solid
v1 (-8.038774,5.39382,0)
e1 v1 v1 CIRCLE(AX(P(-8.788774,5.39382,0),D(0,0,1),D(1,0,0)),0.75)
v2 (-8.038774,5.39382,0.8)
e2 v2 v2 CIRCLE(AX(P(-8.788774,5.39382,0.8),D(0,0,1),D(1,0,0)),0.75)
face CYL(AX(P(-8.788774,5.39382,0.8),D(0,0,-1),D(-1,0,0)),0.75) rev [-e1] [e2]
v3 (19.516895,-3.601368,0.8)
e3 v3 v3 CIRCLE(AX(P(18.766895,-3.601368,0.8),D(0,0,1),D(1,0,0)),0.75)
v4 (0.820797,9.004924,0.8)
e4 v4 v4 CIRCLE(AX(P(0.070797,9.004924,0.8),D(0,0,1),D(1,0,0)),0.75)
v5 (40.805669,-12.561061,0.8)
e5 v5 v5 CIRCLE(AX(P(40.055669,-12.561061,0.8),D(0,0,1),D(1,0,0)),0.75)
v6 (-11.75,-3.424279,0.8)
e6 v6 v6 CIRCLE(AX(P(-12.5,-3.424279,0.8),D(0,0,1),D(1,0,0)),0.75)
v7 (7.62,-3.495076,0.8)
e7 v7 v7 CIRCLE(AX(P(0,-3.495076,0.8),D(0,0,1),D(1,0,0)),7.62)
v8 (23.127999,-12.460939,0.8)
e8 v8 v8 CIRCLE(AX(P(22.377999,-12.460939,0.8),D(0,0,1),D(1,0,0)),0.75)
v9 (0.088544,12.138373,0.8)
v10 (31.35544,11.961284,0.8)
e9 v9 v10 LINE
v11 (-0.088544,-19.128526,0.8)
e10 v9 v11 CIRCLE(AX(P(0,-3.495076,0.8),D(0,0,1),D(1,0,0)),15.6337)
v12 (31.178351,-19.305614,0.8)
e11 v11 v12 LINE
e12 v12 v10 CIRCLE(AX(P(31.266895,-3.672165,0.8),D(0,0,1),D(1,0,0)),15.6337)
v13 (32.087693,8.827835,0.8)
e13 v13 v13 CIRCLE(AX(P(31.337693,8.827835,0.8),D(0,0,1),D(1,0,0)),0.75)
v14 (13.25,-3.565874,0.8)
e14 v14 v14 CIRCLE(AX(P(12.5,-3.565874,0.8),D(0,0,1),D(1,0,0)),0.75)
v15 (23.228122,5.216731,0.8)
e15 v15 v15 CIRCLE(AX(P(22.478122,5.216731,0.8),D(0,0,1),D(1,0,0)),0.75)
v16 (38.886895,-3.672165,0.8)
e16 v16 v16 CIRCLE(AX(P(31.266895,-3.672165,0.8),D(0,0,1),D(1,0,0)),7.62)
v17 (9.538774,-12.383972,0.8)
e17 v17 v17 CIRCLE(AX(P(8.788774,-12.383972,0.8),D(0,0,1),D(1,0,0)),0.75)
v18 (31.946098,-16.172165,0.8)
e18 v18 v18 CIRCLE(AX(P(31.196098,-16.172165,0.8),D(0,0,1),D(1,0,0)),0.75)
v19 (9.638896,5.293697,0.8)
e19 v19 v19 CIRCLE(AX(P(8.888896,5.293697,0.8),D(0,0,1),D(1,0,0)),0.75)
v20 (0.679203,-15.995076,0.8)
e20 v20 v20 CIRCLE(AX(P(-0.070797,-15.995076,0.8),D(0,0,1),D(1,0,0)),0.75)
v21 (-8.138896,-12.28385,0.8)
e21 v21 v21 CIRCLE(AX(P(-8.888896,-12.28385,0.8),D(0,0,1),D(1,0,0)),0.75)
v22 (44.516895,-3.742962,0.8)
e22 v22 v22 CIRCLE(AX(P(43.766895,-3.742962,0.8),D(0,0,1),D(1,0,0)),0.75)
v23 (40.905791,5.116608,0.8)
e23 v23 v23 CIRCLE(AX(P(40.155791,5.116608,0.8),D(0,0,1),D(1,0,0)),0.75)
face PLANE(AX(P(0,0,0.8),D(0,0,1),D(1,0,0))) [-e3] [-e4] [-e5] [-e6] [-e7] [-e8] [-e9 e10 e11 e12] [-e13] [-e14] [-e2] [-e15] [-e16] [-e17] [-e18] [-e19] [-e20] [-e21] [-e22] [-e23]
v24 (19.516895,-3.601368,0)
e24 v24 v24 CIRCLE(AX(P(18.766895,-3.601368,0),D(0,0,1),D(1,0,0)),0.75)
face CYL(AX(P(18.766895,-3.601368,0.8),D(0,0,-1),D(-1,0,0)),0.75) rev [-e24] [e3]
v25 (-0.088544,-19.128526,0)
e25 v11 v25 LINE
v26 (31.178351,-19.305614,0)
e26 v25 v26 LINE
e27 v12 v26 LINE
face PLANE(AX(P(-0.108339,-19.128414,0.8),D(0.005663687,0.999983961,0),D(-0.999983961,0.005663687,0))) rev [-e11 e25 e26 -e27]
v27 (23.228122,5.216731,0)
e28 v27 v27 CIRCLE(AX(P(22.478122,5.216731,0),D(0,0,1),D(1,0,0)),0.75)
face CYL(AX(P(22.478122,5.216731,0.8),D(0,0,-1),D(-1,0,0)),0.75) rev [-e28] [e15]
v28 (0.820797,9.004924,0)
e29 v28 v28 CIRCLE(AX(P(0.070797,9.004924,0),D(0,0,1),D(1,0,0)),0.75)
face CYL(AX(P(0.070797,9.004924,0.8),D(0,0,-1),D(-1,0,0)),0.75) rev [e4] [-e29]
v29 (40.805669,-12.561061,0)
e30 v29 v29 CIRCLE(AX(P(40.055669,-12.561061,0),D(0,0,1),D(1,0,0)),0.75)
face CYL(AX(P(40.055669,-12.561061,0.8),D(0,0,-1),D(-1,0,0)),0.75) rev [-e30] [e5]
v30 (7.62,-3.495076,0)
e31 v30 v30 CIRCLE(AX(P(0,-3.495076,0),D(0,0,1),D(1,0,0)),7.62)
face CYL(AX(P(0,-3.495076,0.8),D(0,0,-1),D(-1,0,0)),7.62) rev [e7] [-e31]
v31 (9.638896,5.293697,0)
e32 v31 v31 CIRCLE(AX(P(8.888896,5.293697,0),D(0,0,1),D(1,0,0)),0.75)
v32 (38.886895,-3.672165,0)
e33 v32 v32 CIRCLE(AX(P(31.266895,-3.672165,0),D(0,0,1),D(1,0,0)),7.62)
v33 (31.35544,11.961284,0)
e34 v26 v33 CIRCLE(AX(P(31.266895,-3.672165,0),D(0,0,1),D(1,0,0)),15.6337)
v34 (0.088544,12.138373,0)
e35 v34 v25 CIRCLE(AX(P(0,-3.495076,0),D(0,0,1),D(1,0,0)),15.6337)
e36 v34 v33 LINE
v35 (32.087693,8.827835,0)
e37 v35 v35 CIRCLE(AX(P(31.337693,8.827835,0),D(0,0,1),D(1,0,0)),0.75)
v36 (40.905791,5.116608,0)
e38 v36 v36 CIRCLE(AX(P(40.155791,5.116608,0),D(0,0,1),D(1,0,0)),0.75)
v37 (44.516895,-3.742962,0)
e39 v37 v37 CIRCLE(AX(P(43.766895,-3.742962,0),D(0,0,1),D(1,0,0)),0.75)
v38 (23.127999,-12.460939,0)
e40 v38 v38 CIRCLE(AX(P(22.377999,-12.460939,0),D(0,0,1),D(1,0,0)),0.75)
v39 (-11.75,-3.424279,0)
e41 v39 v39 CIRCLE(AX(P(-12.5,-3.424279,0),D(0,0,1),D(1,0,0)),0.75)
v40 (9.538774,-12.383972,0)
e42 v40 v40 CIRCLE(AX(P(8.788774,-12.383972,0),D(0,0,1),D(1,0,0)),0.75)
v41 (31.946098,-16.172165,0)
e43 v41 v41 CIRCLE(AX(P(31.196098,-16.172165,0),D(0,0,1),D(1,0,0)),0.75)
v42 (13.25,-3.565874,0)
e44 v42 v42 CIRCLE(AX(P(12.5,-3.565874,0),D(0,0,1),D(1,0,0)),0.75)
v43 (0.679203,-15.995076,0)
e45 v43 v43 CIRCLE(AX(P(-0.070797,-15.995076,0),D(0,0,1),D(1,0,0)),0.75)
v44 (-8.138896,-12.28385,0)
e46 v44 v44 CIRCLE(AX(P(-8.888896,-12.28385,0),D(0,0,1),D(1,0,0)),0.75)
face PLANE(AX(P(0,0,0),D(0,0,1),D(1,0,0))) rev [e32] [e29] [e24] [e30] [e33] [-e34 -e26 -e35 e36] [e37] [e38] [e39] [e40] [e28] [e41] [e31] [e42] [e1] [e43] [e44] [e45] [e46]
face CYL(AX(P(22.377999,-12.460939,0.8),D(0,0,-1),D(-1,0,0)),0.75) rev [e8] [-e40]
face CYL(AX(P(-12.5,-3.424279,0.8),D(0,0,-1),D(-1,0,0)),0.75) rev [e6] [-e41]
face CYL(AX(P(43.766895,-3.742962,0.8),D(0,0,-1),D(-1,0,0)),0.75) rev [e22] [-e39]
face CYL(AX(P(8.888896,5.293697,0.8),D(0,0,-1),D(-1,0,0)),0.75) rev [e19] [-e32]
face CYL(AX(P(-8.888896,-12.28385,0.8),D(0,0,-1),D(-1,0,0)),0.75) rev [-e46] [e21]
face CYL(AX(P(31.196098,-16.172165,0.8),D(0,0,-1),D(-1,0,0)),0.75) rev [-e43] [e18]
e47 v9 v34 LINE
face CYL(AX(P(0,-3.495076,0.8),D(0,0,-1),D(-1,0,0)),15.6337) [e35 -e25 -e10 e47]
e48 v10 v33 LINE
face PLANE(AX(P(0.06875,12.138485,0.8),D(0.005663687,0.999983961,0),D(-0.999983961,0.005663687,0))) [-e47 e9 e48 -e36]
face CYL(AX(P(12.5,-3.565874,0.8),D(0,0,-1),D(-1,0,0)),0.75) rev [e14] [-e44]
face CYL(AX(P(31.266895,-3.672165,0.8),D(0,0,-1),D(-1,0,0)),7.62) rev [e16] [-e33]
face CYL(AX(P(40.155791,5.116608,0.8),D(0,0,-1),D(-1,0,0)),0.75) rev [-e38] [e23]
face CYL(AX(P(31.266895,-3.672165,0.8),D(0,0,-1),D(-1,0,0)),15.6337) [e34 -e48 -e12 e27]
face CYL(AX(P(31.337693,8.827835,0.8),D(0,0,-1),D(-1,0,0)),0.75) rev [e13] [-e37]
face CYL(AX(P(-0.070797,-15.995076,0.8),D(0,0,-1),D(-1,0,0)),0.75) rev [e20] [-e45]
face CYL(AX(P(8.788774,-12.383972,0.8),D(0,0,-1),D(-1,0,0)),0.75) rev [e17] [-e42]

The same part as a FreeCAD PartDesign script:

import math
import FreeCAD as App
import Part
import Sketcher

V = App.Vector
Q = App.Units.Quantity

doc = App.newDocument("Part")
body = doc.addObject("PartDesign::Body", "Body")

# Sketch on XY plane
sketch1 = body.newObject("Sketcher::SketchObject", "Sketch")
sketch1.AttachmentSupport = (doc.getObject("XY_Plane"), [""])
sketch1.MapMode = "FlatFace"
sketch1.addGeometry([
    Part.LineSegment(V(-0.1, -19.1, 0), V(31.2, -19.3, 0)),  # 0
    Part.ArcOfCircle(Part.Circle(V(31.3, -3.7, 0), V(0, 0, 1), 15.6), math.radians(-90), math.radians(90)),  # 1
    Part.LineSegment(V(31.4, 12, 0), V(0.1, 12.1, 0)),  # 2
    Part.ArcOfCircle(Part.Circle(V(0, -3.5, 0), V(0, 0, 1), 15.6), math.radians(90), math.radians(270)),  # 3
    Part.Circle(V(-0.1, -16, 0), V(0, 0, 1), 0.8),  # 4
    Part.Circle(V(-8.9, -12.3, 0), V(0, 0, 1), 0.8),  # 5
    Part.Circle(V(8.8, -12.4, 0), V(0, 0, 1), 0.8),  # 6
    Part.Circle(V(22.4, -12.5, 0), V(0, 0, 1), 0.8),  # 7
    Part.Circle(V(31.2, -16.2, 0), V(0, 0, 1), 0.8),  # 8
    Part.Circle(V(40.1, -12.6, 0), V(0, 0, 1), 0.8),  # 9
    Part.Circle(V(18.8, -3.6, 0), V(0, 0, 1), 0.8),  # 10
    Part.Circle(V(31.3, -3.7, 0), V(0, 0, 1), 7.6),  # 11
    Part.Circle(V(43.8, -3.7, 0), V(0, 0, 1), 0.8),  # 12
    Part.Circle(V(-12.5, -3.4, 0), V(0, 0, 1), 0.8),  # 13
    Part.Circle(V(0, -3.5, 0), V(0, 0, 1), 7.6),  # 14
    Part.Circle(V(12.5, -3.6, 0), V(0, 0, 1), 0.8),  # 15
    Part.Circle(V(-8.8, 5.4, 0), V(0, 0, 1), 0.8),  # 16
    Part.Circle(V(0.1, 9, 0), V(0, 0, 1), 0.8),  # 17
    Part.Circle(V(8.9, 5.3, 0), V(0, 0, 1), 0.8),  # 18
    Part.Circle(V(22.5, 5.2, 0), V(0, 0, 1), 0.8),  # 19
    Part.Circle(V(40.2, 5.1, 0), V(0, 0, 1), 0.8),  # 20
    Part.Circle(V(31.3, 8.8, 0), V(0, 0, 1), 0.8),  # 21
], False)
sketch1.addConstraint([
    Sketcher.Constraint("Tangent", 0, 2, 1, 1),
    Sketcher.Constraint("Tangent", 1, 2, 2, 1),
    Sketcher.Constraint("Tangent", 2, 2, 3, 1),
    Sketcher.Constraint("Tangent", 3, 2, 0, 1),
    Sketcher.Constraint("Coincident", 11, 3, 1, 3),
    Sketcher.Constraint("Coincident", 14, 3, 3, 3),
    Sketcher.Constraint("Equal", 1, 3),
    Sketcher.Constraint("Equal", 4, 5),
    Sketcher.Constraint("Equal", 5, 6),
    Sketcher.Constraint("Equal", 6, 7),
    Sketcher.Constraint("Equal", 7, 8),
    Sketcher.Constraint("Equal", 8, 9),
    Sketcher.Constraint("Equal", 9, 10),
    Sketcher.Constraint("Equal", 10, 12),
    Sketcher.Constraint("Equal", 12, 13),
    Sketcher.Constraint("Equal", 11, 14),
    Sketcher.Constraint("Equal", 13, 15),
    Sketcher.Constraint("Equal", 15, 16),
    Sketcher.Constraint("Equal", 16, 17),
    Sketcher.Constraint("Equal", 17, 18),
    Sketcher.Constraint("Equal", 18, 19),
    Sketcher.Constraint("Equal", 19, 20),
    Sketcher.Constraint("Equal", 20, 21),
    Sketcher.Constraint("PointOnObject", 3, 3, -2),
    Sketcher.Constraint("Diameter", 11, Q("0.6 in")),
    Sketcher.Constraint("Radius", 1, Q("0.6155 in")),
    Sketcher.Constraint("Diameter", 4, 1.5),
    Sketcher.Constraint("Distance", 0, Q("1.2309999 in")),
    Sketcher.Constraint("DistanceX", -1, 1, 7, 3, 22.377999),
    Sketcher.Constraint("DistanceX", -1, 1, 8, 3, 31.196098),
    Sketcher.Constraint("DistanceX", 13, 3, -1, 1, 12.5),
    Sketcher.Constraint("DistanceX", -1, 1, 15, 3, 12.5),
    Sketcher.Constraint("DistanceY", 4, 3, 3, 3, 12.5),
    Sketcher.Constraint("DistanceX", 5, 3, 4, 3, 8.818099),
    Sketcher.Constraint("DistanceY", 8, 3, 1, 3, 12.5),
    Sketcher.Constraint("DistanceX", 10, 3, 1, 3, 12.5),
    Sketcher.Constraint("DistanceY", 9, 3, 12, 3, 8.818099),
    Sketcher.Constraint("DistanceX", 1, 3, 12, 3, 12.5),
    Sketcher.Constraint("DistanceY", 6, 3, 15, 3, 8.818099),
    Sketcher.Constraint("DistanceY", 13, 3, 16, 3, 8.818099),
    Sketcher.Constraint("DistanceY", 3, 3, 17, 3, 12.5),
    Sketcher.Constraint("DistanceX", 17, 3, 18, 3, 8.818099),
    Sketcher.Constraint("DistanceX", 18, 3, 10, 3, 9.877999),
    Sketcher.Constraint("DistanceY", 10, 3, 19, 3, 8.818099),
    Sketcher.Constraint("DistanceX", 21, 3, 20, 3, 8.818099),
    Sketcher.Constraint("DistanceY", 1, 3, 21, 3, 12.5),
    Sketcher.Constraint("DistanceY", 5, 3, -1, 1, 12.28385),
    Sketcher.Constraint("DistanceY", 7, 3, -1, 1, 12.460939),
    Sketcher.Constraint("DistanceX", -1, 1, 9, 3, 40.055669),
    Sketcher.Constraint("DistanceY", 9, 3, -1, 1, 12.561061),
    Sketcher.Constraint("DistanceY", 13, 3, -1, 1, 3.424279),
    Sketcher.Constraint("DistanceX", -1, 1, 19, 3, 22.478122),
    Sketcher.Constraint("DistanceY", -1, 1, 19, 3, 5.216731),
    Sketcher.Constraint("DistanceX", -1, 1, 20, 3, 40.155791),
    Sketcher.Constraint("DistanceY", -1, 1, 20, 3, 5.116608),
    Sketcher.Constraint("DistanceX", -1, 1, 0, 2, 31.178351),
    Sketcher.Constraint("DistanceX", 5, 3, 1, 3, 40.155791),
    Sketcher.Constraint("DistanceX", 4, 3, 6, 3, 8.859571),
    Sketcher.Constraint("DistanceY", 9, 3, 6, 3, 0.177089),
    Sketcher.Constraint("DistanceY", 10, 3, 3, 3, 0.106292),
    Sketcher.Constraint("DistanceX", 16, 3, 17, 3, 8.859571),
    Sketcher.Constraint("DistanceY", 15, 3, 18, 3, 8.859571),
])
pad1 = body.newObject("PartDesign::Pad", "Pad")
pad1.Profile = sketch1
pad1.Length = 0.8

doc.recompute()
